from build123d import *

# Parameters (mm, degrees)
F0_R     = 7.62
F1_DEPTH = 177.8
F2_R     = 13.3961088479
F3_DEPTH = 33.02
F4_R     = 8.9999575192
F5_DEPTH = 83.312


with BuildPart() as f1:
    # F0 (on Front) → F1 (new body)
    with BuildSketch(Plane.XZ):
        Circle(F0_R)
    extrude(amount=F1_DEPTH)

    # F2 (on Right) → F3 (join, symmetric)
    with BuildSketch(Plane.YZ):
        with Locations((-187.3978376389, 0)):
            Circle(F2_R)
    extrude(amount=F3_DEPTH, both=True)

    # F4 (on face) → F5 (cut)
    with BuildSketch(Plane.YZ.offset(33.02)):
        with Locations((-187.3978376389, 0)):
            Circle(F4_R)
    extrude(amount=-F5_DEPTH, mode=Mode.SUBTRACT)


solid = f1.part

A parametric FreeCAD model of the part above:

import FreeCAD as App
import Part
import Sketcher
from FreeCAD import Vector
Q = App.Units.Quantity

doc = App.newDocument("Part")
params = doc.addObject("Spreadsheet::Sheet", "Params")
for row, (alias, value) in enumerate([
    ("sketch1_diameter", "0.6 in"),
    ("pad1_length", "7 in"),
    ("pad2_length", "2.6 in"),
    ("pocket1_length", "3.28 in"),
], start=1):
    params.set(f"A{row}", alias)
    params.set(f"B{row}", "=" + value)
    params.setAlias(f"B{row}", alias)

body = doc.addObject("PartDesign::Body", "Body")

# Sketch on XZ plane
sketch1 = body.newObject("Sketcher::SketchObject", "Sketch")
sketch1.AttachmentSupport = (doc.getObject("XZ_Plane"), [""])
sketch1.MapMode = "FlatFace"
sketch1.addGeometry(Part.Circle(Vector(0, 0, 0), Vector(0, 0, 1), 8), False)
sketch1.addConstraint([
    Sketcher.Constraint("Coincident", 0, 3, -1, 1),
    Sketcher.Constraint("Diameter", 0, Q("0.6 in")),
])
sketch1.setExpression("Constraints[1]", "Params.sketch1_diameter")
pad1 = body.newObject("PartDesign::Pad", "Pad")
pad1.Profile = sketch1
pad1.setExpression("Length", "Params.pad1_length")

# Sketch on YZ plane
sketch2 = body.newObject("Sketcher::SketchObject", "Sketch001")
sketch2.AttachmentSupport = (doc.getObject("YZ_Plane"), [""])
sketch2.MapMode = "FlatFace"
sketch2.addGeometry(Part.Circle(Vector(-187, 0, 0), Vector(0, 0, 1), 13), False)
sketch2.addConstraint([
    Sketcher.Constraint("PointOnObject", 0, 3, -1),
    Sketcher.Constraint("Diameter", 0, 26.792218),
    Sketcher.Constraint("DistanceX", 0, 3, -1, 1, 187.397838),
])
pad2 = body.newObject("PartDesign::Pad", "Pad001")
pad2.Profile = sketch2
pad2.setExpression("Length", "Params.pad2_length")
pad2.Midplane = True

# Sketch on YZ plane
sketch3 = body.newObject("Sketcher::SketchObject", "Sketch002")
sketch3.AttachmentSupport = (doc.getObject("YZ_Plane"), [""])
sketch3.MapMode = "FlatFace"
sketch3.AttachmentOffset = App.Placement(Vector(0, 0, 1.3 * 25.4), App.Rotation())
sketch3.addGeometry(Part.Circle(Vector(-187, 0, 0), Vector(0, 0, 1), 9), False)
sketch3.addConstraint([
    Sketcher.Constraint("PointOnObject", 0, 3, -1),
    Sketcher.Constraint("Diameter", 0, 17.999915),
    Sketcher.Constraint("DistanceX", 0, 3, -1, 1, 187.397838),
])
pocket1 = body.newObject("PartDesign::Pocket", "Pocket")
pocket1.Profile = sketch3
pocket1.setExpression("Length", "Params.pocket1_length")

doc.recompute()
